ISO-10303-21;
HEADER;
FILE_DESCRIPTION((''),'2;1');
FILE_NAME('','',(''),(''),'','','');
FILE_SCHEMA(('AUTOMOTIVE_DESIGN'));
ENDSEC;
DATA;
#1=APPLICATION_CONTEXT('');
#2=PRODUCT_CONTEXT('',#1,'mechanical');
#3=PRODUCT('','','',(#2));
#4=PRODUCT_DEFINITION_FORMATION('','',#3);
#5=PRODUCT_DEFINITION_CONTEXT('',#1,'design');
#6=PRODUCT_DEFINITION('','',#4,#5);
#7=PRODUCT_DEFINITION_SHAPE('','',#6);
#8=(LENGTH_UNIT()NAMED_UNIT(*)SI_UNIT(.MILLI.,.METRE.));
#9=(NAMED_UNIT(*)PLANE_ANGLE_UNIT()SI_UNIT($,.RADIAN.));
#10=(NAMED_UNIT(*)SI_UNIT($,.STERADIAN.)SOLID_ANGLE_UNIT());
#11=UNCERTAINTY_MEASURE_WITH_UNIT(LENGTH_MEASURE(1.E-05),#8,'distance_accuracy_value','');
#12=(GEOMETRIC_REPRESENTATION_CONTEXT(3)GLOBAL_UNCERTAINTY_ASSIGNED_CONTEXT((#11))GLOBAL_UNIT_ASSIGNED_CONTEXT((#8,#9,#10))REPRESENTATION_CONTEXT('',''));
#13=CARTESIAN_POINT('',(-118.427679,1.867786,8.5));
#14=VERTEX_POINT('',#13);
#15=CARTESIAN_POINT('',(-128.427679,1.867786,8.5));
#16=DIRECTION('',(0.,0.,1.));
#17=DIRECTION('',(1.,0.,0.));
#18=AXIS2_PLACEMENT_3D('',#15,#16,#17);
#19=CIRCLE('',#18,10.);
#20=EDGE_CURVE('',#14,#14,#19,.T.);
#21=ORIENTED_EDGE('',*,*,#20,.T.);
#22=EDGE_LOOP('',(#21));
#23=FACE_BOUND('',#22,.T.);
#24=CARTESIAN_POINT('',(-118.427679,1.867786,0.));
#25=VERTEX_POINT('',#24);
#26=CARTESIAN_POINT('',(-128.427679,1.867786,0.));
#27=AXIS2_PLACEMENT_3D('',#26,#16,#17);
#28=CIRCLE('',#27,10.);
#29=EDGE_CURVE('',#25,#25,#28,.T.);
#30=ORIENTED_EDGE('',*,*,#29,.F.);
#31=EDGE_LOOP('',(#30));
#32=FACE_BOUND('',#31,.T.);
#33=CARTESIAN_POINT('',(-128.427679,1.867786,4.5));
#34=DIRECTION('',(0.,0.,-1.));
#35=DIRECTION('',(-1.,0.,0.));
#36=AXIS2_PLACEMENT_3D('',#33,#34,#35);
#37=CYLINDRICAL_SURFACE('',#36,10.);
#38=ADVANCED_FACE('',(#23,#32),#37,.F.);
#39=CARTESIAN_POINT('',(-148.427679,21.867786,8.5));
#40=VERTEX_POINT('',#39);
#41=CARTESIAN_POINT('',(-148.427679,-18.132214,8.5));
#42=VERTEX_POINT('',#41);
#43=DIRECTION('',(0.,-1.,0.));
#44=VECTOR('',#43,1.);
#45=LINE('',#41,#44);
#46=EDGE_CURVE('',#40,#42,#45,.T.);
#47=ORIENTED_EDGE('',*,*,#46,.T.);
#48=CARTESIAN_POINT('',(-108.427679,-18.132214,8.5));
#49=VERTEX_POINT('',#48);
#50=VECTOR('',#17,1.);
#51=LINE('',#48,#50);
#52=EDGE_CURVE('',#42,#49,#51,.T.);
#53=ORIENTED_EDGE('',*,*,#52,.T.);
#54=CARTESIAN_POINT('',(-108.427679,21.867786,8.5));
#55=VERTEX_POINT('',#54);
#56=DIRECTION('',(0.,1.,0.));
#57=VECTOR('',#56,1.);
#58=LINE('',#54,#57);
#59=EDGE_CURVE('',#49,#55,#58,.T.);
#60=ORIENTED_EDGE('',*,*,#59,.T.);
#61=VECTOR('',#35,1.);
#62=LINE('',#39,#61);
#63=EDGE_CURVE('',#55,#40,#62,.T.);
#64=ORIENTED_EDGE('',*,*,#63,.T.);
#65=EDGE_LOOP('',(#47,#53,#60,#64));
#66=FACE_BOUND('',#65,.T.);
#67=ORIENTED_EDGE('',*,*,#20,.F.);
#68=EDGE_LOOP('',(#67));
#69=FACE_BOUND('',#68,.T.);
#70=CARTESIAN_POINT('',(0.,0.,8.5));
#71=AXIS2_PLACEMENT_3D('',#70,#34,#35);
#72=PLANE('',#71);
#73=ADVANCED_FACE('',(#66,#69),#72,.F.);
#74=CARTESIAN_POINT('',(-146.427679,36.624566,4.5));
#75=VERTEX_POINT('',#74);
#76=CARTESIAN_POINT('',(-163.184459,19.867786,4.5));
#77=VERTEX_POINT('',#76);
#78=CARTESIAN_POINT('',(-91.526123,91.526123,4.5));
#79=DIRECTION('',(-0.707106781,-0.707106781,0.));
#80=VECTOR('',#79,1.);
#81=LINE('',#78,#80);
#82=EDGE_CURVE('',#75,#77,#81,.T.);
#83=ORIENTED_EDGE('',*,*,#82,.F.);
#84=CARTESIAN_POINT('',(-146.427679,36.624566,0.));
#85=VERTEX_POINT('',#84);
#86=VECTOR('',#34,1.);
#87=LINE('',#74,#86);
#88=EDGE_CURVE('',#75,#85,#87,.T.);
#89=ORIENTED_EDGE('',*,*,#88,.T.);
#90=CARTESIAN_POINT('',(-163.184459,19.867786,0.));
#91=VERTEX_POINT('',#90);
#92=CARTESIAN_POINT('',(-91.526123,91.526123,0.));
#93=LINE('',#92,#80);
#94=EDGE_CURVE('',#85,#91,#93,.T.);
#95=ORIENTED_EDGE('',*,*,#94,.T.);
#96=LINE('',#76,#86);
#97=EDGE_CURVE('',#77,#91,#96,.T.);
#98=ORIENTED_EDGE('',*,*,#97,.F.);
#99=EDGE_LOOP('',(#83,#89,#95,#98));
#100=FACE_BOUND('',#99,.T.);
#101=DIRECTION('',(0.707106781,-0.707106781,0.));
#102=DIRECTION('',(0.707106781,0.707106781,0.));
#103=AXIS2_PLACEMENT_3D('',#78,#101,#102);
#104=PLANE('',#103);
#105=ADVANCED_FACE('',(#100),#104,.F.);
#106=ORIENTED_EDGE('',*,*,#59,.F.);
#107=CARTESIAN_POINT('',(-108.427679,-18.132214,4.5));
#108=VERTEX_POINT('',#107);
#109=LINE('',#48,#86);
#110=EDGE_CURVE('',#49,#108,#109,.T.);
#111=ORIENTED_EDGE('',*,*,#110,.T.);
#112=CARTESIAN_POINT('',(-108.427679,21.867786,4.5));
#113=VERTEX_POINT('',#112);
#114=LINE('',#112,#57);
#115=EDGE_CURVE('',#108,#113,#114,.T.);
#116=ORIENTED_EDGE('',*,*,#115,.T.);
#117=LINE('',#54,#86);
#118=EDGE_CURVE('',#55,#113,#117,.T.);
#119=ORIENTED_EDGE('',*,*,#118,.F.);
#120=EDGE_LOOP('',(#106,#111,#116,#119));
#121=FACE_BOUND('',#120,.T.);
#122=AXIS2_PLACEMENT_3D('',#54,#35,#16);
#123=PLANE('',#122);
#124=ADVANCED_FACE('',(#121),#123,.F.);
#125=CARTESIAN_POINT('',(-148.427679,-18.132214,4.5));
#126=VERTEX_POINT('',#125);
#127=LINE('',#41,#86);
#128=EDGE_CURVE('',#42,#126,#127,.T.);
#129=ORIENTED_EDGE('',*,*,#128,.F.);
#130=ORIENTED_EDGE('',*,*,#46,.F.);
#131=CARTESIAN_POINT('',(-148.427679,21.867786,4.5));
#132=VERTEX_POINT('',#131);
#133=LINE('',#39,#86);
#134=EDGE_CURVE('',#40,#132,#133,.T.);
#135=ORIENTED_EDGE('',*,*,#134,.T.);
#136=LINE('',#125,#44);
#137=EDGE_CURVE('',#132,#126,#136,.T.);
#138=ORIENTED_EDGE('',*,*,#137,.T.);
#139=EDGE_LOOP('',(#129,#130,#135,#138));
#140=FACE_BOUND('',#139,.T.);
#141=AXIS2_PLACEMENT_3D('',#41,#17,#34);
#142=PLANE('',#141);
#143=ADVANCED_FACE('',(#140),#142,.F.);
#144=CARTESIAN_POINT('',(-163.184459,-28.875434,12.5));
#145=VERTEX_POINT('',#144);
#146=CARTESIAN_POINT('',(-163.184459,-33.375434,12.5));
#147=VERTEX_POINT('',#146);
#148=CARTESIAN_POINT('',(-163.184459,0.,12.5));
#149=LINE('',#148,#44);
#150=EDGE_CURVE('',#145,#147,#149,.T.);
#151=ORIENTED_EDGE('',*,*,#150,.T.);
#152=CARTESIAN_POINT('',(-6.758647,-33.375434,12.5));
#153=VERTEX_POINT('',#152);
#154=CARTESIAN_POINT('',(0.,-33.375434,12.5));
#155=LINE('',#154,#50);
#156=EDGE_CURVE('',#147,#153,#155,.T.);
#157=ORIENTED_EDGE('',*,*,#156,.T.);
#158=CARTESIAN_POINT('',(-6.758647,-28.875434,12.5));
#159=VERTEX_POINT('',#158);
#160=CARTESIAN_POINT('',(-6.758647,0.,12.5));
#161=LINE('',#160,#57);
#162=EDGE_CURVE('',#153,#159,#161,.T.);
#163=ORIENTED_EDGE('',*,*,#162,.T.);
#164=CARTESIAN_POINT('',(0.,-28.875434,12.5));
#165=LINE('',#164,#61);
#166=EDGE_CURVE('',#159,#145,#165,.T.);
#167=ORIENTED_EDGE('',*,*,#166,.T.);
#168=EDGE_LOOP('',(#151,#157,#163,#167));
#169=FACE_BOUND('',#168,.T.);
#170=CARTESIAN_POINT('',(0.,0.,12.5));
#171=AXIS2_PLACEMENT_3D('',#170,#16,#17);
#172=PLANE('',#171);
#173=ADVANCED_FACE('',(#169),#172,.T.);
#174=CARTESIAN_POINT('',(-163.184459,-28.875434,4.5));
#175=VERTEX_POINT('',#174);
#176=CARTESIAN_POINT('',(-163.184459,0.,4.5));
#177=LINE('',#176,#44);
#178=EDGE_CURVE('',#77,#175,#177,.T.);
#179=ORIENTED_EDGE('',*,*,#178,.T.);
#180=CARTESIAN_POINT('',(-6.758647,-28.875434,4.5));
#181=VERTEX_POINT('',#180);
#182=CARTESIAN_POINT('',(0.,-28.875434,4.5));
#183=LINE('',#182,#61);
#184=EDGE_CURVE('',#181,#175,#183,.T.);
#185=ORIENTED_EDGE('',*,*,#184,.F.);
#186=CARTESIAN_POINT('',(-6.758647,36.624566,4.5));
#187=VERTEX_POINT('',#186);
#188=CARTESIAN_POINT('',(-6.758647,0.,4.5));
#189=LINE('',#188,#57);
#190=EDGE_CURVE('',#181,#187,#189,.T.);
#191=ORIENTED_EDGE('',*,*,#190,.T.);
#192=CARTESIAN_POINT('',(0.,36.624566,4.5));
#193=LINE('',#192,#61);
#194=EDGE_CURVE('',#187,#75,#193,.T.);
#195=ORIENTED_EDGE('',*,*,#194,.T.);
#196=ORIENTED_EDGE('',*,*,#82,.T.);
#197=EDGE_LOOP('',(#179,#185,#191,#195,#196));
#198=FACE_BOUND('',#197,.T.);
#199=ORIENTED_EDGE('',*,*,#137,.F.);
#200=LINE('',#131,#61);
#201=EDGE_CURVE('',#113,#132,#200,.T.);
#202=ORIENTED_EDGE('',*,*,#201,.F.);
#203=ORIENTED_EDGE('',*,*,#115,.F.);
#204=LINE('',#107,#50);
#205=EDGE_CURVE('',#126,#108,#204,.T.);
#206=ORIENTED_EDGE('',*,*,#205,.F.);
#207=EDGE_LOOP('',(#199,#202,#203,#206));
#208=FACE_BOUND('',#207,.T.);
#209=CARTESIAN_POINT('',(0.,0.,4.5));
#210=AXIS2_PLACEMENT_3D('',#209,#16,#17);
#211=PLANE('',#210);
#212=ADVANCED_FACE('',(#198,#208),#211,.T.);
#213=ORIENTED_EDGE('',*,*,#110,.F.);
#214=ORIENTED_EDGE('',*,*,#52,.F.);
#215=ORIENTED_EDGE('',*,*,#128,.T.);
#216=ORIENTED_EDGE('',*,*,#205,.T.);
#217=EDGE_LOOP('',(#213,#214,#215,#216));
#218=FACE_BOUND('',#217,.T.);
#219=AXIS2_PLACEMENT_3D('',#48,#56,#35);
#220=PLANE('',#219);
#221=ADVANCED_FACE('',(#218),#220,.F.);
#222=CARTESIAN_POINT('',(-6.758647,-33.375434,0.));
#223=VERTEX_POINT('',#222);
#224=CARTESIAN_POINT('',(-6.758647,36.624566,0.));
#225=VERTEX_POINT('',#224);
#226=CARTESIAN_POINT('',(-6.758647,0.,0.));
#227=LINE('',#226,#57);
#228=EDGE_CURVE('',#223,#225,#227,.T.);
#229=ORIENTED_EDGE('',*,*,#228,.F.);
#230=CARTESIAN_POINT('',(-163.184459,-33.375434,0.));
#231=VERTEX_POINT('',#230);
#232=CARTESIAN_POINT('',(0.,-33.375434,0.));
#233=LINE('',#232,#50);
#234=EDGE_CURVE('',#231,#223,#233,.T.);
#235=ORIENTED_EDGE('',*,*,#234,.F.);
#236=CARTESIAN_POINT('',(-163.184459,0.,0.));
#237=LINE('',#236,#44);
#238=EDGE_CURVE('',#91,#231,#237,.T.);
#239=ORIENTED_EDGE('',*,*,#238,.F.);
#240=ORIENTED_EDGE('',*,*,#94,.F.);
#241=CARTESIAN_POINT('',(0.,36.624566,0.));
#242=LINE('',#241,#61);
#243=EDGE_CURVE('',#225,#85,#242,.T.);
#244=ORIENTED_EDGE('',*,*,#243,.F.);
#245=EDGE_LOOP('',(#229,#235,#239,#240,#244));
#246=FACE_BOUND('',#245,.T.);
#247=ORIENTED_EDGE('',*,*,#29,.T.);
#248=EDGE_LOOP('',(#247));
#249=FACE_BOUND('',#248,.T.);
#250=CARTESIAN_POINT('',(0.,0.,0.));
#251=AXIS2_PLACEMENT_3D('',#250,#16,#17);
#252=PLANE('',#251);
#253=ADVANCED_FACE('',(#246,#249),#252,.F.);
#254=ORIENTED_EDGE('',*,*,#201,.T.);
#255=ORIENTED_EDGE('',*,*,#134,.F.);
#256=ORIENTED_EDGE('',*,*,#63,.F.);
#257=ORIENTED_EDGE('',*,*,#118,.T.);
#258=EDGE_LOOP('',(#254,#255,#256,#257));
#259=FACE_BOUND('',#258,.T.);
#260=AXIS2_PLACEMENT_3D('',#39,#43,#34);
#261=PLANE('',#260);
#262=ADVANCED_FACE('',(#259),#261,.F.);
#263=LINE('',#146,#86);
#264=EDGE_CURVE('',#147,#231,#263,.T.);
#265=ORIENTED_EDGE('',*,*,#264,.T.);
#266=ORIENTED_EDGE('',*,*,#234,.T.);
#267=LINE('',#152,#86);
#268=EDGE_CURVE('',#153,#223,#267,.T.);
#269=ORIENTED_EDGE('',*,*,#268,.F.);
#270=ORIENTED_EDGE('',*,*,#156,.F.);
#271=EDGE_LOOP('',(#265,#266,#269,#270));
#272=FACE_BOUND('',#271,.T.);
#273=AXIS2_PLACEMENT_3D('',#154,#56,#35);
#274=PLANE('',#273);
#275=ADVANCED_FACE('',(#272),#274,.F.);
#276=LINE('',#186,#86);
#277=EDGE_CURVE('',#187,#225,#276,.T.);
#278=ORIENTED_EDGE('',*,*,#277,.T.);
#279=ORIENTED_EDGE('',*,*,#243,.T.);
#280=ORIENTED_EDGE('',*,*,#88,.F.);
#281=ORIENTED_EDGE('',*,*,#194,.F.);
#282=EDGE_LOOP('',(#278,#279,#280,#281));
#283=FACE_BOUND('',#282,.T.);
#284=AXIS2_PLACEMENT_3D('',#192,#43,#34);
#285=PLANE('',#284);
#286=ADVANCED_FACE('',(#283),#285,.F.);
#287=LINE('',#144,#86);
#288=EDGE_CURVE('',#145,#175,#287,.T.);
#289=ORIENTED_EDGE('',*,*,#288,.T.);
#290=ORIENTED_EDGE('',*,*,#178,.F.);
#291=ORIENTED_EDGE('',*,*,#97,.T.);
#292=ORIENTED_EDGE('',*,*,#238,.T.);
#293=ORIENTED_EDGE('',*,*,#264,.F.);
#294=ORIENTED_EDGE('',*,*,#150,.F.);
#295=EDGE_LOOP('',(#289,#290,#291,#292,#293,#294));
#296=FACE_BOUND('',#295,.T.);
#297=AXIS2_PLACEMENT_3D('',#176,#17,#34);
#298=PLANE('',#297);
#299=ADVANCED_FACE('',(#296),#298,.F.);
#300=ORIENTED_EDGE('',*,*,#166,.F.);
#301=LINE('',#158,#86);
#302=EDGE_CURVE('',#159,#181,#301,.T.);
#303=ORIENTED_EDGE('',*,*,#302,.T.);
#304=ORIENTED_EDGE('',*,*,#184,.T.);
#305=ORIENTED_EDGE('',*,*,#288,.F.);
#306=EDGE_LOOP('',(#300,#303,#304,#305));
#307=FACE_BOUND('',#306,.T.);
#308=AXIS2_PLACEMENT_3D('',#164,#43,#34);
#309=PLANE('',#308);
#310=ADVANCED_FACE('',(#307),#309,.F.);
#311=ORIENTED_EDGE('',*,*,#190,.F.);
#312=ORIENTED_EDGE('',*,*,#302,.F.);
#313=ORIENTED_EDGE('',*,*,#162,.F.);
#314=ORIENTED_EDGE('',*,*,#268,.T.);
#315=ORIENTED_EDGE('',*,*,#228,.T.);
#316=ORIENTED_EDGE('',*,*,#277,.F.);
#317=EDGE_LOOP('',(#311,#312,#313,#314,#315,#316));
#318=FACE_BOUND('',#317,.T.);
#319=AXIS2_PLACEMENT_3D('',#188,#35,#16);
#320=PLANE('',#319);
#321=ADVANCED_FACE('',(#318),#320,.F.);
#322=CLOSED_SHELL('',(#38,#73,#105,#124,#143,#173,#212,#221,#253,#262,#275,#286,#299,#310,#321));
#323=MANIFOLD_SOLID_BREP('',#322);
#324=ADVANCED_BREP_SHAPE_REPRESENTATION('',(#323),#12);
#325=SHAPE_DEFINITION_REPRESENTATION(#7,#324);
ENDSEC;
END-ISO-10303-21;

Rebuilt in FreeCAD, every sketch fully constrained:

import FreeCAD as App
import Part
import Sketcher

V = App.Vector
Q = App.Units.Quantity


def add_polygon(sketch, points):
    """Adds a closed chain of lines whose ends are joined by coincident constraints."""
    first, n = sketch.GeometryCount, len(points)
    for a, b in zip(points, points[1:] + points[:1]):
        sketch.addGeometry(Part.LineSegment(App.Vector(*a, 0), App.Vector(*b, 0)), False)
    for i in range(n):
        sketch.addConstraint(Sketcher.Constraint("Coincident", first + i, 2, first + (i + 1) % n, 1))

doc = App.newDocument("Part")
params = doc.addObject("Spreadsheet::Sheet", "Params")
for row, (alias, value) in enumerate([
    ("sketch1_diameter", "20 mm"),
    ("sketch1_height", "65.5 mm"),
    ("pad1_length", "4.5 mm"),
    ("sketch2_width", "90 mm"),
    ("sketch2_height", "65.5 mm"),
    ("pad2_length", "4.5 mm"),
    ("sketch3_height", "4.5 mm"),
    ("pad3_length", "12.5 mm"),
    ("sketch4_diameter", "20 mm"),
    ("sketch4_width", "40 mm"),
    ("pad4_length", "4 mm"),
], start=1):
    params.set(f"A{row}", alias)
    params.set(f"B{row}", "=" + value)
    params.setAlias(f"B{row}", alias)

body = doc.addObject("PartDesign::Body", "Body")

# Sketch on XY plane
sketch1 = doc.addObject("Sketcher::SketchObject", "Sketch")
body.addObject(sketch1)
sketch1.AttachmentSupport = (doc.XY_Plane, [""])
sketch1.MapMode = "FlatFace"
add_polygon(sketch1, [(-97, -29), (-97, 37), (-146, 37), (-163, 20), (-163, -29)])  # lines 0-4
sketch1.addGeometry(Part.Circle(V(-128, 2, 0), V(0, 0, 1), 10), False)  # 5
sketch1.addConstraint(Sketcher.Constraint("Vertical", 0))
sketch1.addConstraint(Sketcher.Constraint("Horizontal", 1))
sketch1.addConstraint(Sketcher.Constraint("Vertical", 3))
sketch1.addConstraint(Sketcher.Constraint("Horizontal", 4))
sketch1.addConstraint(Sketcher.Constraint("Diameter", 5, 20.0))
sketch1.addConstraint(Sketcher.Constraint("Angle", 2, Q("-135 deg")))
sketch1.addConstraint(Sketcher.Constraint("DistanceY", 0, 1, 0, 2, 65.5))
sketch1.addConstraint(Sketcher.Constraint("DistanceX", 1, 2, 5, 3, 18.0))
sketch1.addConstraint(Sketcher.Constraint("DistanceY", 5, 3, 2, 2, 18.0))
sketch1.addConstraint(Sketcher.Constraint("DistanceY", 3, 2, 3, 1, 48.74322))
sketch1.addConstraint(Sketcher.Constraint("DistanceX", 1, 2, 1, 1, 49.669032))
sketch1.addConstraint(Sketcher.Constraint("DistanceX", 5, 3, -1, 1, 128.427679))
sketch1.addConstraint(Sketcher.Constraint("DistanceY", -1, 1, 5, 3, 1.867786))
sketch1.setExpression("Constraints[9]", "Params.sketch1_diameter")
sketch1.setExpression("Constraints[11]", "Params.sketch1_height")
pad1 = doc.addObject("PartDesign::Pad", "Pad")
body.addObject(pad1)
pad1.Profile = sketch1
pad1.setExpression("Length", "Params.pad1_length")

# Sketch on XY plane
sketch2 = doc.addObject("Sketcher::SketchObject", "Sketch001")
body.addObject(sketch2)
sketch2.AttachmentSupport = (doc.XY_Plane, [""])
sketch2.MapMode = "FlatFace"
add_polygon(sketch2, [(-7, -29), (-7, 37), (-97, 37), (-97, -29)])  # lines 0-3
sketch2.addConstraint(Sketcher.Constraint("Vertical", 0))
sketch2.addConstraint(Sketcher.Constraint("Horizontal", 1))
sketch2.addConstraint(Sketcher.Constraint("Vertical", 2))
sketch2.addConstraint(Sketcher.Constraint("Horizontal", 3))
sketch2.addConstraint(Sketcher.Constraint("DistanceX", 1, 2, 1, 1, 90.0))
sketch2.addConstraint(Sketcher.Constraint("DistanceY", 0, 1, 0, 2, 65.5))
sketch2.addConstraint(Sketcher.Constraint("DistanceX", 0, 2, -1, 1, 6.758647))
sketch2.addConstraint(Sketcher.Constraint("DistanceY", -1, 1, 0, 2, 36.624566))
sketch2.setExpression("Constraints[8]", "Params.sketch2_width")
sketch2.setExpression("Constraints[9]", "Params.sketch2_height")
pad2 = doc.addObject("PartDesign::Pad", "Pad001")
body.addObject(pad2)
pad2.Profile = sketch2
pad2.setExpression("Length", "Params.pad2_length")

# Sketch on XY plane
sketch3 = doc.addObject("Sketcher::SketchObject", "Sketch002")
body.addObject(sketch3)
sketch3.AttachmentSupport = (doc.XY_Plane, [""])
sketch3.MapMode = "FlatFace"
add_polygon(sketch3, [(-6.8, -33.4), (-6.8, -28.9), (-163.2, -28.9), (-163.2, -33.4)])  # lines 0-3
sketch3.addConstraint(Sketcher.Constraint("Vertical", 0))
sketch3.addConstraint(Sketcher.Constraint("Horizontal", 1))
sketch3.addConstraint(Sketcher.Constraint("Vertical", 2))
sketch3.addConstraint(Sketcher.Constraint("Horizontal", 3))
sketch3.addConstraint(Sketcher.Constraint("DistanceY", 0, 1, 0, 2, 4.5))
sketch3.addConstraint(Sketcher.Constraint("DistanceX", 1, 2, 1, 1, 156.425812))
sketch3.addConstraint(Sketcher.Constraint("DistanceX", 1, 2, -1, 1, 163.184459))
sketch3.addConstraint(Sketcher.Constraint("DistanceY", 0, 2, -1, 1, 28.875434))
sketch3.setExpression("Constraints[8]", "Params.sketch3_height")
pad3 = doc.addObject("PartDesign::Pad", "Pad002")
body.addObject(pad3)
pad3.Profile = sketch3
pad3.setExpression("Length", "Params.pad3_length")

# Sketch on XY plane
sketch4 = doc.addObject("Sketcher::SketchObject", "Sketch003")
body.addObject(sketch4)
sketch4.AttachmentSupport = (doc.XY_Plane, [""])
sketch4.MapMode = "FlatFace"
sketch4.AttachmentOffset = App.Placement(V(0, 0, 4.5), App.Rotation())
add_polygon(sketch4, [(-148, 22), (-148, -18), (-108, -18), (-108, 22)])  # lines 0-3
sketch4.addGeometry(Part.Circle(V(-128, 2, 0), V(0, 0, 1), 10), False)  # 4
sketch4.addConstraint(Sketcher.Constraint("Vertical", 0))
sketch4.addConstraint(Sketcher.Constraint("Horizontal", 1))
sketch4.addConstraint(Sketcher.Constraint("Vertical", 2))
sketch4.addConstraint(Sketcher.Constraint("Horizontal", 3))
sketch4.addConstraint(Sketcher.Constraint("Equal", 3, 0))
sketch4.addConstraint(Sketcher.Constraint("Diameter", 4, 20.0))
sketch4.addConstraint(Sketcher.Constraint("DistanceX", 1, 1, 1, 2, 40.0))
sketch4.addConstraint(Sketcher.Constraint("DistanceX", 0, 2, 4, 3, 20.0))
sketch4.addConstraint(Sketcher.Constraint("DistanceY", 0, 2, 4, 3, 20.0))
sketch4.addConstraint(Sketcher.Constraint("DistanceX", 4, 3, -1, 1, 128.427679))
sketch4.addConstraint(Sketcher.Constraint("DistanceY", -1, 1, 4, 3, 1.867786))
sketch4.setExpression("Constraints[9]", "Params.sketch4_diameter")
sketch4.setExpression("Constraints[10]", "Params.sketch4_width")
pad4 = doc.addObject("PartDesign::Pad", "Pad003")
body.addObject(pad4)
pad4.Profile = sketch4
pad4.setExpression("Length", "Params.pad4_length")

doc.recompute()
